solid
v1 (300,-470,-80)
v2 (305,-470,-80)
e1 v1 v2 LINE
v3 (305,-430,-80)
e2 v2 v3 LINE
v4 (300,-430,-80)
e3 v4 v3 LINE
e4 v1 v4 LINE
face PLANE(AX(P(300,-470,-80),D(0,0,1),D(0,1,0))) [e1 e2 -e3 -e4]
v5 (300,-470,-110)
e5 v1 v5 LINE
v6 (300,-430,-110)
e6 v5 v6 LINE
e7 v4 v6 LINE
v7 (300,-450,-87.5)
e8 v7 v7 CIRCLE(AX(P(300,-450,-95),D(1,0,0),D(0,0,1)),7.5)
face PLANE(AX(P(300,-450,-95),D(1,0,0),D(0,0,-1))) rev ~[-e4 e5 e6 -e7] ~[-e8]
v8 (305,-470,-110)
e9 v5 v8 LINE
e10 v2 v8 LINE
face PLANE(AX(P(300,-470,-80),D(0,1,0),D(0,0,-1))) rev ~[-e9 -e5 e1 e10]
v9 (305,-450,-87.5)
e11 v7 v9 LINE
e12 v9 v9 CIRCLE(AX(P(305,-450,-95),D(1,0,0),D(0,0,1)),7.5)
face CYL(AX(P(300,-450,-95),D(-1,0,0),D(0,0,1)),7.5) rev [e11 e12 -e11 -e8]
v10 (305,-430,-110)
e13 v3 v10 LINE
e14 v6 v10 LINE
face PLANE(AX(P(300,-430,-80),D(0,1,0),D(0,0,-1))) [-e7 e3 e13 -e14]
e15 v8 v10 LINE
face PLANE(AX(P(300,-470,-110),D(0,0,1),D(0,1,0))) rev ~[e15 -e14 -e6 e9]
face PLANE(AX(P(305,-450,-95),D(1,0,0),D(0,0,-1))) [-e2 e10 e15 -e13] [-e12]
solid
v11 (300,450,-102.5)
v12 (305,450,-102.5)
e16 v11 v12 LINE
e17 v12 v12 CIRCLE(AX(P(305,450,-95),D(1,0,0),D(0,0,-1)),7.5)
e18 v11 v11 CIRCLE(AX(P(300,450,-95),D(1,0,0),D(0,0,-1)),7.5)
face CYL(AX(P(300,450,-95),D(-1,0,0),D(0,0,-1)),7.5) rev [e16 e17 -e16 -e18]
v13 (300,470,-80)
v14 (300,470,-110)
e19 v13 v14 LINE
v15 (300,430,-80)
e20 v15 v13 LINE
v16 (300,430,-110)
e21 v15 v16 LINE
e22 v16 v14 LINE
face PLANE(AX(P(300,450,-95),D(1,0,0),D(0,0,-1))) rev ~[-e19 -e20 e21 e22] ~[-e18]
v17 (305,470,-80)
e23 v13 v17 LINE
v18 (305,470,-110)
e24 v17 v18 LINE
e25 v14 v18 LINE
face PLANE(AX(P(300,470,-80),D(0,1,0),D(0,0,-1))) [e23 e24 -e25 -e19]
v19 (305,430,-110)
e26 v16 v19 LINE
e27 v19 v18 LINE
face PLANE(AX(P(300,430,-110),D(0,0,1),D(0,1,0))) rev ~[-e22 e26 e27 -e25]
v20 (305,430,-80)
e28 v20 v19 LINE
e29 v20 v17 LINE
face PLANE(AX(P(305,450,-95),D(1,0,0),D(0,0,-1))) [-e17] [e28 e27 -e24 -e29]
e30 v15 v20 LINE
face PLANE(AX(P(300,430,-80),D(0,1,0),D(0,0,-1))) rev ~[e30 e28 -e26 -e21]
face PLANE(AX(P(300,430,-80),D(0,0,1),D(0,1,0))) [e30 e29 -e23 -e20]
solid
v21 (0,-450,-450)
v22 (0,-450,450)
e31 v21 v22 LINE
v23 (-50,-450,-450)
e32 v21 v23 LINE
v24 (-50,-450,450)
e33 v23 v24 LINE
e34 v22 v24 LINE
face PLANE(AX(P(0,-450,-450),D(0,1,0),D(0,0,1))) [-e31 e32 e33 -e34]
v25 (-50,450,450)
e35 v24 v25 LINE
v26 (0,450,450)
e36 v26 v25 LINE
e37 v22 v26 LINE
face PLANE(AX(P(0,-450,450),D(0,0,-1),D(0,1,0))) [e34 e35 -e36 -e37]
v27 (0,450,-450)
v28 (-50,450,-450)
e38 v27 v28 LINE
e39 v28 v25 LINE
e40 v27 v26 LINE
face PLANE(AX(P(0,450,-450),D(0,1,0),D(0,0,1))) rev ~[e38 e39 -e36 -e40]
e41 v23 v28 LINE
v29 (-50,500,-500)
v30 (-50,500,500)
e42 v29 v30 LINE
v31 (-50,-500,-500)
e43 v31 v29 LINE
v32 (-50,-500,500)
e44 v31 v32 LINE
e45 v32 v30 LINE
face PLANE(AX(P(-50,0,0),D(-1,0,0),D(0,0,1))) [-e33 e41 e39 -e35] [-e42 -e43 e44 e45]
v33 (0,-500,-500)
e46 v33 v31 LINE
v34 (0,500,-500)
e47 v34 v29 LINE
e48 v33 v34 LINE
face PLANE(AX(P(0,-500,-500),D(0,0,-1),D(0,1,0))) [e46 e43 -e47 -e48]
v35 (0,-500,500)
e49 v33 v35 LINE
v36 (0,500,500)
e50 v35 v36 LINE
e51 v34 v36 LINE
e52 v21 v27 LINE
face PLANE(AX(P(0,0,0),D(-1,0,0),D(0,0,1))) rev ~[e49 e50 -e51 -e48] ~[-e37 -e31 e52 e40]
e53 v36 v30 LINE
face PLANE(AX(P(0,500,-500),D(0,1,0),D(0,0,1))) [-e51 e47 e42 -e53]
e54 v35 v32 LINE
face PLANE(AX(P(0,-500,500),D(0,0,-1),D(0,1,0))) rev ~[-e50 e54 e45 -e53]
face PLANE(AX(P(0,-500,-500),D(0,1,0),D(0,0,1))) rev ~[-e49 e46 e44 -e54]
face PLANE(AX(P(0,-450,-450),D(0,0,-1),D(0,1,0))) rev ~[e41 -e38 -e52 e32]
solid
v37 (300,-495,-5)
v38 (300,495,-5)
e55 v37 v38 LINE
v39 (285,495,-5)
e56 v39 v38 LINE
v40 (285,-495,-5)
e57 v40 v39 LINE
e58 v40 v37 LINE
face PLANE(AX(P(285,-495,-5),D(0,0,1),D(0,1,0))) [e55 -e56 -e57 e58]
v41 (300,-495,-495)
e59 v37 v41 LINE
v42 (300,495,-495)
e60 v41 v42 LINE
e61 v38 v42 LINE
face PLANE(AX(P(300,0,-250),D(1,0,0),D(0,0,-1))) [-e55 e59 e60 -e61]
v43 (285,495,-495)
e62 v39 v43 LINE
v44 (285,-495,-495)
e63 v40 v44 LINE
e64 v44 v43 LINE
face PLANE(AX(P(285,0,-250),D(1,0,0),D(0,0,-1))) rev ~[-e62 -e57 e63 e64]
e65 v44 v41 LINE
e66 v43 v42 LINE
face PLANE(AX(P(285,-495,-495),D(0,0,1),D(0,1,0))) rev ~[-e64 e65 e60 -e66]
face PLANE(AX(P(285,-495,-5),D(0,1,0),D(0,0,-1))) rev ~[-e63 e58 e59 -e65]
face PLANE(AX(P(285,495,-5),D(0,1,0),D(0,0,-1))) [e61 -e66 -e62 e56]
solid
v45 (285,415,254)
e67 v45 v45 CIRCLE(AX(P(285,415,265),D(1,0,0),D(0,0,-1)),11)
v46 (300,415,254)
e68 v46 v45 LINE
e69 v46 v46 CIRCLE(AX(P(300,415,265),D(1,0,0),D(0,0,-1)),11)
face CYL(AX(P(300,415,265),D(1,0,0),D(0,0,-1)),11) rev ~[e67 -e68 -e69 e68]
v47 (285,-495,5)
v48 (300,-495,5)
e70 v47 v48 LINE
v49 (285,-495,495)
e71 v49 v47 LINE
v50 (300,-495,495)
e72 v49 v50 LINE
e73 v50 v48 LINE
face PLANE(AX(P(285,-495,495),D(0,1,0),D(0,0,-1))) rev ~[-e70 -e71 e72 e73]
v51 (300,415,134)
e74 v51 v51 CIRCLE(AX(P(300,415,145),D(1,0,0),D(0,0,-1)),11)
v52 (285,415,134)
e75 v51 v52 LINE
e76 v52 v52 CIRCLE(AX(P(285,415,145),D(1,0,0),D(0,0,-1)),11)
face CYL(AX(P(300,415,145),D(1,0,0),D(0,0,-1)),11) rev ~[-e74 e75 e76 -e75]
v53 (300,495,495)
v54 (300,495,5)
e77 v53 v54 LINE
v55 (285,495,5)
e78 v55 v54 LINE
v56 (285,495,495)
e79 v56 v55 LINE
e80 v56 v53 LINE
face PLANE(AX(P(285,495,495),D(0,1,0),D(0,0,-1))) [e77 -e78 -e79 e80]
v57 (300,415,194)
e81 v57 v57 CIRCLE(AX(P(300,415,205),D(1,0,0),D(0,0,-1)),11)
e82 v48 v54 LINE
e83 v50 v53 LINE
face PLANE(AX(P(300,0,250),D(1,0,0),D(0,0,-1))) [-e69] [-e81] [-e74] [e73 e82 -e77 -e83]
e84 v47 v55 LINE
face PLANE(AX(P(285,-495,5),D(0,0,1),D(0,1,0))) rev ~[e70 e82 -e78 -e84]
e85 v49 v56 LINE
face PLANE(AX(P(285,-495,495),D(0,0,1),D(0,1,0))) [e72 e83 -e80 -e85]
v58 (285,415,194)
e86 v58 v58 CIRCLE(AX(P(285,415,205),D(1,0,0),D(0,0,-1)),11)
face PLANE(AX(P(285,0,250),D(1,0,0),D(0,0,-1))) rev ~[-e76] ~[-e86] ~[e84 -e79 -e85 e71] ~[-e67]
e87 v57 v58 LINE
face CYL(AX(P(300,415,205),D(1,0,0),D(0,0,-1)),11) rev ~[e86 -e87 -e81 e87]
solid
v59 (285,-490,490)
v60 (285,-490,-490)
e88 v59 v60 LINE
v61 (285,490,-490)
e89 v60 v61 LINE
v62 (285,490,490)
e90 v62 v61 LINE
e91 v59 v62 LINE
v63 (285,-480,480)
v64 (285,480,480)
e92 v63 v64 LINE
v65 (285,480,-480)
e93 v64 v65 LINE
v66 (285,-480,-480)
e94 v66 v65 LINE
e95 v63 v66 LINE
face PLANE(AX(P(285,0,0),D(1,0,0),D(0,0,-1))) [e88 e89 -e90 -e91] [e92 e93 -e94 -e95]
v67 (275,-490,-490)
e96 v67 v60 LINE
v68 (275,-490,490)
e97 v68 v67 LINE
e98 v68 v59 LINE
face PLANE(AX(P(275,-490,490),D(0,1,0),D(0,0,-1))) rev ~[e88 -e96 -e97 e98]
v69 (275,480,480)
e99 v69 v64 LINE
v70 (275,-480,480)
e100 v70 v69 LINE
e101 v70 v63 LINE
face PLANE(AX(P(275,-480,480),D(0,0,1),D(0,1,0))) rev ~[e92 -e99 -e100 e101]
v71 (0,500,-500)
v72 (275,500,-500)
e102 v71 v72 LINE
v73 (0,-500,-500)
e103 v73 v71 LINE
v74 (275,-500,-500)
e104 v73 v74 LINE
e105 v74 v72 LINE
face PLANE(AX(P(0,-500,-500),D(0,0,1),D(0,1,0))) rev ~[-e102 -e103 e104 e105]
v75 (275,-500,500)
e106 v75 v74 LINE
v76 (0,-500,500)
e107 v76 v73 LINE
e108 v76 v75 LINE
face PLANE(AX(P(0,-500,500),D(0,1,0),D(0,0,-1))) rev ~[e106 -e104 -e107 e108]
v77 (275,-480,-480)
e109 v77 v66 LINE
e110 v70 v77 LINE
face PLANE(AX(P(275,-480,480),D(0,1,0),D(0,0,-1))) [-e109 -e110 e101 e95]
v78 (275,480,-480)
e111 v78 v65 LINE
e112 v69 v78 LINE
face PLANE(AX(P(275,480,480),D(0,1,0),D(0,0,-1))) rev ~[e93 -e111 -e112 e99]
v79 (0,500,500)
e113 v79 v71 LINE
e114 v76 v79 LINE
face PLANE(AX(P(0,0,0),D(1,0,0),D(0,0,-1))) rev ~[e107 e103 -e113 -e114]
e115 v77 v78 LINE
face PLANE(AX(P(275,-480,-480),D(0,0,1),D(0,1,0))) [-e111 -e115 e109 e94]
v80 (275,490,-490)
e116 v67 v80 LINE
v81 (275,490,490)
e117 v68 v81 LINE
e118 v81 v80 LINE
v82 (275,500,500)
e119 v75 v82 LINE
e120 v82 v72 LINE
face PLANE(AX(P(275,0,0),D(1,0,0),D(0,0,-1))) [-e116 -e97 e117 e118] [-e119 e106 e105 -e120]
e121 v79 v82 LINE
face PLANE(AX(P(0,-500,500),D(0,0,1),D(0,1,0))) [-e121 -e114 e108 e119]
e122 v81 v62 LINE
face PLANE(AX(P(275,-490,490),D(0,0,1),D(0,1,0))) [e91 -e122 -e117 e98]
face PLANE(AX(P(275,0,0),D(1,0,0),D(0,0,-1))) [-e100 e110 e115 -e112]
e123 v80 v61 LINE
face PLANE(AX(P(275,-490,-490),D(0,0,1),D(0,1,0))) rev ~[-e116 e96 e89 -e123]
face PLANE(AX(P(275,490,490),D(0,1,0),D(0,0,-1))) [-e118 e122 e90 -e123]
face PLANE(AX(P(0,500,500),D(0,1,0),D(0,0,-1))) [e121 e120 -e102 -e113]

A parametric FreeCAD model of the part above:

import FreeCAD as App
import Part
import Sketcher
from FreeCAD import Vector
Q = App.Units.Quantity

doc = App.newDocument("Part")
body = doc.addObject("PartDesign::Body", "Body")

# Sketch on YZ plane
sketch1 = body.newObject("Sketcher::SketchObject", "Sketch")
sketch1.AttachmentSupport = (doc.getObject("YZ_Plane"), [""])
sketch1.MapMode = "FlatFace"
sketch1.addGeometry(Part.LineSegment(Vector(500, 500, 0), Vector(-500, 500, 0)), False)
sketch1.addGeometry(Part.LineSegment(Vector(-500, 500, 0), Vector(-500, -500, 0)), False)
sketch1.addGeometry(Part.LineSegment(Vector(-500, -500, 0), Vector(500, -500, 0)), False)
sketch1.addGeometry(Part.LineSegment(Vector(500, -500, 0), Vector(500, 500, 0)), False)
sketch1.addConstraint(Sketcher.Constraint("Coincident", 0, 2, 1, 1))
sketch1.addConstraint(Sketcher.Constraint("Coincident", 1, 2, 2, 1))
sketch1.addConstraint(Sketcher.Constraint("Coincident", 2, 2, 3, 1))
sketch1.addConstraint(Sketcher.Constraint("Coincident", 3, 2, 0, 1))
sketch1.addConstraint(Sketcher.Constraint("Horizontal", 0))
sketch1.addConstraint(Sketcher.Constraint("Vertical", 1))
sketch1.addConstraint(Sketcher.Constraint("Horizontal", 2))
sketch1.addConstraint(Sketcher.Constraint("Vertical", 3))
sketch1.addConstraint(Sketcher.Constraint("Symmetric", 0, 2, 2, 2, -1, 1))
sketch1.addConstraint(Sketcher.Constraint("Equal", 2, 1))
sketch1.addConstraint(Sketcher.Constraint("DistanceX", 0, 2, 0, 1, Q("1000 mm")))
pad1 = body.newObject("PartDesign::Pad", "Pad")
pad1.Profile = sketch1
pad1.Length = 275

# Sketch on YZ plane
sketch2 = body.newObject("Sketcher::SketchObject", "Sketch001")
sketch2.AttachmentSupport = (doc.getObject("YZ_Plane"), [""])
sketch2.MapMode = "FlatFace"
sketch2.AttachmentOffset = App.Placement(Vector(0, 0, 275), App.Rotation())
sketch2.addGeometry(Part.LineSegment(Vector(490, 490, 0), Vector(-490, 490, 0)), False)
sketch2.addGeometry(Part.LineSegment(Vector(-490, 490, 0), Vector(-490, -490, 0)), False)
sketch2.addGeometry(Part.LineSegment(Vector(-490, -490, 0), Vector(490, -490, 0)), False)
sketch2.addGeometry(Part.LineSegment(Vector(490, -490, 0), Vector(490, 490, 0)), False)
sketch2.addGeometry(Part.LineSegment(Vector(-480, -480, 0), Vector(-480, 480, 0)), False)
sketch2.addGeometry(Part.LineSegment(Vector(-480, 480, 0), Vector(480, 480, 0)), False)
sketch2.addGeometry(Part.LineSegment(Vector(480, 480, 0), Vector(480, -480, 0)), False)
sketch2.addGeometry(Part.LineSegment(Vector(480, -480, 0), Vector(-480, -480, 0)), False)
sketch2.addConstraint(Sketcher.Constraint("Coincident", 0, 2, 1, 1))
sketch2.addConstraint(Sketcher.Constraint("Coincident", 1, 2, 2, 1))
sketch2.addConstraint(Sketcher.Constraint("Coincident", 2, 2, 3, 1))
sketch2.addConstraint(Sketcher.Constraint("Coincident", 3, 2, 0, 1))
sketch2.addConstraint(Sketcher.Constraint("Coincident", 4, 2, 5, 1))
sketch2.addConstraint(Sketcher.Constraint("Coincident", 5, 2, 6, 1))
sketch2.addConstraint(Sketcher.Constraint("Coincident", 6, 2, 7, 1))
sketch2.addConstraint(Sketcher.Constraint("Coincident", 7, 2, 4, 1))
sketch2.addConstraint(Sketcher.Constraint("Horizontal", 0))
sketch2.addConstraint(Sketcher.Constraint("Vertical", 1))
sketch2.addConstraint(Sketcher.Constraint("Horizontal", 2))
sketch2.addConstraint(Sketcher.Constraint("Vertical", 3))
sketch2.addConstraint(Sketcher.Constraint("Vertical", 4))
sketch2.addConstraint(Sketcher.Constraint("Horizontal", 5))
sketch2.addConstraint(Sketcher.Constraint("Vertical", 6))
sketch2.addConstraint(Sketcher.Constraint("Horizontal", 7))
sketch2.addConstraint(Sketcher.Constraint("Symmetric", 0, 2, 2, 2, -1, 1))
sketch2.addConstraint(Sketcher.Constraint("Symmetric", 4, 2, 6, 2, -1, 1))
sketch2.addConstraint(Sketcher.Constraint("Equal", 2, 1))
sketch2.addConstraint(Sketcher.Constraint("Equal", 7, 4))
sketch2.addConstraint(Sketcher.Constraint("DistanceX", 0, 2, 0, 1, Q("980 mm")))
sketch2.addConstraint(Sketcher.Constraint("DistanceX", 5, 1, 5, 2, Q("960 mm")))
pad2 = body.newObject("PartDesign::Pad", "Pad001")
pad2.Profile = sketch2
pad2.Length = 10
body2 = doc.addObject("PartDesign::Body", "Body001")

# Sketch on YZ plane
sketch3 = body2.newObject("Sketcher::SketchObject", "Sketch002")
sketch3.AttachmentSupport = (doc.getObject("YZ_Plane001"), [""])
sketch3.MapMode = "FlatFace"
sketch3.AttachmentOffset = App.Placement(Vector(0, 0, 285), App.Rotation())
sketch3.addGeometry(Part.LineSegment(Vector(495, 495, 0), Vector(-495, 495, 0)), False)
sketch3.addGeometry(Part.LineSegment(Vector(-495, 495, 0), Vector(-495, 5, 0)), False)
sketch3.addGeometry(Part.LineSegment(Vector(-495, 5, 0), Vector(495, 5, 0)), False)
sketch3.addGeometry(Part.LineSegment(Vector(495, 5, 0), Vector(495, 495, 0)), False)
sketch3.addConstraint(Sketcher.Constraint("Coincident", 0, 2, 1, 1))
sketch3.addConstraint(Sketcher.Constraint("Coincident", 1, 2, 2, 1))
sketch3.addConstraint(Sketcher.Constraint("Coincident", 2, 2, 3, 1))
sketch3.addConstraint(Sketcher.Constraint("Coincident", 3, 2, 0, 1))
sketch3.addConstraint(Sketcher.Constraint("Horizontal", 0))
sketch3.addConstraint(Sketcher.Constraint("Vertical", 1))
sketch3.addConstraint(Sketcher.Constraint("Horizontal", 2))
sketch3.addConstraint(Sketcher.Constraint("Vertical", 3))
sketch3.addConstraint(Sketcher.Constraint("DistanceX", 0, 2, 0, 1, Q("990 mm")))
sketch3.addConstraint(Sketcher.Constraint("DistanceY", 1, 2, 1, 1, Q("490 mm")))
sketch3.addConstraint(Sketcher.Constraint("DistanceX", 0, 2, -1, 1, Q("495 mm")))
sketch3.addConstraint(Sketcher.Constraint("DistanceY", -1, 1, 0, 2, Q("495 mm")))
pad3 = body2.newObject("PartDesign::Pad", "Pad002")
pad3.Profile = sketch3
pad3.Length = 15

# Sketch on YZ plane
sketch4 = body2.newObject("Sketcher::SketchObject", "Sketch003")
sketch4.AttachmentSupport = (doc.getObject("YZ_Plane001"), [""])
sketch4.MapMode = "FlatFace"
sketch4.AttachmentOffset = App.Placement(Vector(0, 0, 300), App.Rotation())
sketch4.addGeometry(Part.Circle(Vector(415, 265, 0), Vector(0, 0, 1), 11), False)
sketch4.addGeometry(Part.Circle(Vector(415, 205, 0), Vector(0, 0, 1), 11), False)
sketch4.addGeometry(Part.Circle(Vector(415, 145, 0), Vector(0, 0, 1), 11), False)
sketch4.addConstraint(Sketcher.Constraint("Equal", 0, 1))
sketch4.addConstraint(Sketcher.Constraint("Equal", 1, 2))
sketch4.addConstraint(Sketcher.Constraint("Vertical", 0, 3, 1, 3))
sketch4.addConstraint(Sketcher.Constraint("Vertical", 1, 3, 2, 3))
sketch4.addConstraint(Sketcher.Constraint("Diameter", 0, Q("22 mm")))
sketch4.addConstraint(Sketcher.Constraint("DistanceX", -1, 1, 0, 3, Q("415 mm")))
sketch4.addConstraint(Sketcher.Constraint("DistanceY", -1, 1, 0, 3, Q("265 mm")))
sketch4.addConstraint(Sketcher.Constraint("DistanceY", -1, 1, 1, 3, Q("205 mm")))
sketch4.addConstraint(Sketcher.Constraint("DistanceY", -1, 1, 2, 3, Q("145 mm")))
pocket1 = body2.newObject("PartDesign::Pocket", "Pocket")
pocket1.Profile = sketch4
pocket1.Length = 25
body3 = doc.addObject("PartDesign::Body", "Body002")

# Sketch on YZ plane
sketch5 = body3.newObject("Sketcher::SketchObject", "Sketch004")
sketch5.AttachmentSupport = (doc.getObject("YZ_Plane002"), [""])
sketch5.MapMode = "FlatFace"
sketch5.AttachmentOffset = App.Placement(Vector(0, 0, 285), App.Rotation())
sketch5.addGeometry(Part.LineSegment(Vector(495, -5, 0), Vector(-495, -5, 0)), False)
sketch5.addGeometry(Part.LineSegment(Vector(-495, -5, 0), Vector(-495, -495, 0)), False)
sketch5.addGeometry(Part.LineSegment(Vector(-495, -495, 0), Vector(495, -495, 0)), False)
sketch5.addGeometry(Part.LineSegment(Vector(495, -495, 0), Vector(495, -5, 0)), False)
sketch5.addConstraint(Sketcher.Constraint("Coincident", 0, 2, 1, 1))
sketch5.addConstraint(Sketcher.Constraint("Coincident", 1, 2, 2, 1))
sketch5.addConstraint(Sketcher.Constraint("Coincident", 2, 2, 3, 1))
sketch5.addConstraint(Sketcher.Constraint("Coincident", 3, 2, 0, 1))
sketch5.addConstraint(Sketcher.Constraint("Horizontal", 0))
sketch5.addConstraint(Sketcher.Constraint("Vertical", 1))
sketch5.addConstraint(Sketcher.Constraint("Horizontal", 2))
sketch5.addConstraint(Sketcher.Constraint("Vertical", 3))
sketch5.addConstraint(Sketcher.Constraint("DistanceX", 0, 2, 0, 1, Q("990 mm")))
sketch5.addConstraint(Sketcher.Constraint("DistanceY", 1, 2, 1, 1, Q("490 mm")))
sketch5.addConstraint(Sketcher.Constraint("DistanceX", 0, 2, -1, 1, Q("495 mm")))
sketch5.addConstraint(Sketcher.Constraint("DistanceY", 0, 2, -1, 1, Q("5 mm")))
pad4 = body3.newObject("PartDesign::Pad", "Pad003")
pad4.Profile = sketch5
pad4.Length = 15
body4 = doc.addObject("PartDesign::Body", "Body003")

# Sketch on YZ plane
sketch6 = body4.newObject("Sketcher::SketchObject", "Sketch005")
sketch6.AttachmentSupport = (doc.getObject("YZ_Plane003"), [""])
sketch6.MapMode = "FlatFace"
sketch6.addGeometry(Part.LineSegment(Vector(500, -500, 0), Vector(-500, -500, 0)), False)
sketch6.addGeometry(Part.LineSegment(Vector(-500, -500, 0), Vector(-500, 500, 0)), False)
sketch6.addGeometry(Part.LineSegment(Vector(-500, 500, 0), Vector(500, 500, 0)), False)
sketch6.addGeometry(Part.LineSegment(Vector(500, 500, 0), Vector(500, -500, 0)), False)
sketch6.addGeometry(Part.LineSegment(Vector(-450, 450, 0), Vector(-450, -450, 0)), False)
sketch6.addGeometry(Part.LineSegment(Vector(-450, -450, 0), Vector(450, -450, 0)), False)
sketch6.addGeometry(Part.LineSegment(Vector(450, -450, 0), Vector(450, 450, 0)), False)
sketch6.addGeometry(Part.LineSegment(Vector(450, 450, 0), Vector(-450, 450, 0)), False)
sketch6.addConstraint(Sketcher.Constraint("Coincident", 0, 2, 1, 1))
sketch6.addConstraint(Sketcher.Constraint("Coincident", 1, 2, 2, 1))
sketch6.addConstraint(Sketcher.Constraint("Coincident", 2, 2, 3, 1))
sketch6.addConstraint(Sketcher.Constraint("Coincident", 3, 2, 0, 1))
sketch6.addConstraint(Sketcher.Constraint("Coincident", 4, 2, 5, 1))
sketch6.addConstraint(Sketcher.Constraint("Coincident", 5, 2, 6, 1))
sketch6.addConstraint(Sketcher.Constraint("Coincident", 6, 2, 7, 1))
sketch6.addConstraint(Sketcher.Constraint("Coincident", 7, 2, 4, 1))
sketch6.addConstraint(Sketcher.Constraint("Horizontal", 0))
sketch6.addConstraint(Sketcher.Constraint("Vertical", 1))
sketch6.addConstraint(Sketcher.Constraint("Horizontal", 2))
sketch6.addConstraint(Sketcher.Constraint("Vertical", 3))
sketch6.addConstraint(Sketcher.Constraint("Vertical", 4))
sketch6.addConstraint(Sketcher.Constraint("Horizontal", 5))
sketch6.addConstraint(Sketcher.Constraint("Vertical", 6))
sketch6.addConstraint(Sketcher.Constraint("Horizontal", 7))
sketch6.addConstraint(Sketcher.Constraint("Symmetric", 0, 2, 2, 2, -1, 1))
sketch6.addConstraint(Sketcher.Constraint("Symmetric", 4, 2, 6, 2, -1, 1))
sketch6.addConstraint(Sketcher.Constraint("Equal", 2, 1))
sketch6.addConstraint(Sketcher.Constraint("Equal", 7, 4))
sketch6.addConstraint(Sketcher.Constraint("DistanceX", 0, 2, 0, 1, Q("1000 mm")))
sketch6.addConstraint(Sketcher.Constraint("DistanceX", 5, 1, 5, 2, Q("900 mm")))
pad5 = body4.newObject("PartDesign::Pad", "Pad004")
pad5.Profile = sketch6
pad5.Length = 50
pad5.Reversed = True
body5 = doc.addObject("PartDesign::Body", "Body004")

# Sketch on YZ plane
sketch7 = body5.newObject("Sketcher::SketchObject", "Sketch006")
sketch7.AttachmentSupport = (doc.getObject("YZ_Plane004"), [""])
sketch7.MapMode = "FlatFace"
sketch7.AttachmentOffset = App.Placement(Vector(0, 0, 300), App.Rotation())
sketch7.addGeometry(Part.LineSegment(Vector(470, -80, 0), Vector(430, -80, 0)), False)
sketch7.addGeometry(Part.LineSegment(Vector(430, -80, 0), Vector(430, -110, 0)), False)
sketch7.addGeometry(Part.LineSegment(Vector(430, -110, 0), Vector(470, -110, 0)), False)
sketch7.addGeometry(Part.LineSegment(Vector(470, -110, 0), Vector(470, -80, 0)), False)
sketch7.addGeometry(Part.Circle(Vector(450, -95, 0), Vector(0, 0, 1), 8), False)
sketch7.addConstraint(Sketcher.Constraint("Coincident", 0, 2, 1, 1))
sketch7.addConstraint(Sketcher.Constraint("Coincident", 1, 2, 2, 1))
sketch7.addConstraint(Sketcher.Constraint("Coincident", 2, 2, 3, 1))
sketch7.addConstraint(Sketcher.Constraint("Coincident", 3, 2, 0, 1))
sketch7.addConstraint(Sketcher.Constraint("Horizontal", 0))
sketch7.addConstraint(Sketcher.Constraint("Vertical", 1))
sketch7.addConstraint(Sketcher.Constraint("Horizontal", 2))
sketch7.addConstraint(Sketcher.Constraint("Vertical", 3))
sketch7.addConstraint(Sketcher.Constraint("Diameter", 4, Q("15 mm")))
sketch7.addConstraint(Sketcher.Constraint("DistanceX", 0, 2, 0, 1, Q("40 mm")))
sketch7.addConstraint(Sketcher.Constraint("DistanceY", 1, 2, 1, 1, Q("30 mm")))
sketch7.addConstraint(Sketcher.Constraint("DistanceX", -1, 1, 4, 3, Q("450 mm")))
sketch7.addConstraint(Sketcher.Constraint("DistanceY", 4, 3, -1, 1, Q("95 mm")))
sketch7.addConstraint(Sketcher.Constraint("DistanceX", -1, 1, 0, 2, Q("430 mm")))
sketch7.addConstraint(Sketcher.Constraint("DistanceY", 0, 2, -1, 1, Q("80 mm")))
pad6 = body5.newObject("PartDesign::Pad", "Pad005")
pad6.Profile = sketch7
pad6.Length = 5
body6 = doc.addObject("PartDesign::Body", "Body005")

# Sketch on YZ plane
sketch8 = body6.newObject("Sketcher::SketchObject", "Sketch007")
sketch8.AttachmentSupport = (doc.getObject("YZ_Plane005"), [""])
sketch8.MapMode = "FlatFace"
sketch8.AttachmentOffset = App.Placement(Vector(0, 0, 300), App.Rotation())
sketch8.addGeometry(Part.LineSegment(Vector(-430, -80, 0), Vector(-470, -80, 0)), False)
sketch8.addGeometry(Part.LineSegment(Vector(-470, -80, 0), Vector(-470, -110, 0)), False)
sketch8.addGeometry(Part.LineSegment(Vector(-470, -110, 0), Vector(-430, -110, 0)), False)
sketch8.addGeometry(Part.LineSegment(Vector(-430, -110, 0), Vector(-430, -80, 0)), False)
sketch8.addGeometry(Part.Circle(Vector(-450, -95, 0), Vector(0, 0, 1), 8), False)
sketch8.addConstraint(Sketcher.Constraint("Coincident", 0, 2, 1, 1))
sketch8.addConstraint(Sketcher.Constraint("Coincident", 1, 2, 2, 1))
sketch8.addConstraint(Sketcher.Constraint("Coincident", 2, 2, 3, 1))
sketch8.addConstraint(Sketcher.Constraint("Coincident", 3, 2, 0, 1))
sketch8.addConstraint(Sketcher.Constraint("Horizontal", 0))
sketch8.addConstraint(Sketcher.Constraint("Vertical", 1))
sketch8.addConstraint(Sketcher.Constraint("Horizontal", 2))
sketch8.addConstraint(Sketcher.Constraint("Vertical", 3))
sketch8.addConstraint(Sketcher.Constraint("Diameter", 4, Q("15 mm")))
sketch8.addConstraint(Sketcher.Constraint("DistanceX", 0, 2, 0, 1, Q("40 mm")))
sketch8.addConstraint(Sketcher.Constraint("DistanceY", 1, 2, 1, 1, Q("30 mm")))
sketch8.addConstraint(Sketcher.Constraint("DistanceX", 4, 3, -1, 1, Q("450 mm")))
sketch8.addConstraint(Sketcher.Constraint("DistanceY", 4, 3, -1, 1, Q("95 mm")))
sketch8.addConstraint(Sketcher.Constraint("DistanceX", 0, 2, -1, 1, Q("470 mm")))
sketch8.addConstraint(Sketcher.Constraint("DistanceY", 0, 2, -1, 1, Q("80 mm")))
pad7 = body6.newObject("PartDesign::Pad", "Pad006")
pad7.Profile = sketch8
pad7.Length = 5

doc.recompute()
